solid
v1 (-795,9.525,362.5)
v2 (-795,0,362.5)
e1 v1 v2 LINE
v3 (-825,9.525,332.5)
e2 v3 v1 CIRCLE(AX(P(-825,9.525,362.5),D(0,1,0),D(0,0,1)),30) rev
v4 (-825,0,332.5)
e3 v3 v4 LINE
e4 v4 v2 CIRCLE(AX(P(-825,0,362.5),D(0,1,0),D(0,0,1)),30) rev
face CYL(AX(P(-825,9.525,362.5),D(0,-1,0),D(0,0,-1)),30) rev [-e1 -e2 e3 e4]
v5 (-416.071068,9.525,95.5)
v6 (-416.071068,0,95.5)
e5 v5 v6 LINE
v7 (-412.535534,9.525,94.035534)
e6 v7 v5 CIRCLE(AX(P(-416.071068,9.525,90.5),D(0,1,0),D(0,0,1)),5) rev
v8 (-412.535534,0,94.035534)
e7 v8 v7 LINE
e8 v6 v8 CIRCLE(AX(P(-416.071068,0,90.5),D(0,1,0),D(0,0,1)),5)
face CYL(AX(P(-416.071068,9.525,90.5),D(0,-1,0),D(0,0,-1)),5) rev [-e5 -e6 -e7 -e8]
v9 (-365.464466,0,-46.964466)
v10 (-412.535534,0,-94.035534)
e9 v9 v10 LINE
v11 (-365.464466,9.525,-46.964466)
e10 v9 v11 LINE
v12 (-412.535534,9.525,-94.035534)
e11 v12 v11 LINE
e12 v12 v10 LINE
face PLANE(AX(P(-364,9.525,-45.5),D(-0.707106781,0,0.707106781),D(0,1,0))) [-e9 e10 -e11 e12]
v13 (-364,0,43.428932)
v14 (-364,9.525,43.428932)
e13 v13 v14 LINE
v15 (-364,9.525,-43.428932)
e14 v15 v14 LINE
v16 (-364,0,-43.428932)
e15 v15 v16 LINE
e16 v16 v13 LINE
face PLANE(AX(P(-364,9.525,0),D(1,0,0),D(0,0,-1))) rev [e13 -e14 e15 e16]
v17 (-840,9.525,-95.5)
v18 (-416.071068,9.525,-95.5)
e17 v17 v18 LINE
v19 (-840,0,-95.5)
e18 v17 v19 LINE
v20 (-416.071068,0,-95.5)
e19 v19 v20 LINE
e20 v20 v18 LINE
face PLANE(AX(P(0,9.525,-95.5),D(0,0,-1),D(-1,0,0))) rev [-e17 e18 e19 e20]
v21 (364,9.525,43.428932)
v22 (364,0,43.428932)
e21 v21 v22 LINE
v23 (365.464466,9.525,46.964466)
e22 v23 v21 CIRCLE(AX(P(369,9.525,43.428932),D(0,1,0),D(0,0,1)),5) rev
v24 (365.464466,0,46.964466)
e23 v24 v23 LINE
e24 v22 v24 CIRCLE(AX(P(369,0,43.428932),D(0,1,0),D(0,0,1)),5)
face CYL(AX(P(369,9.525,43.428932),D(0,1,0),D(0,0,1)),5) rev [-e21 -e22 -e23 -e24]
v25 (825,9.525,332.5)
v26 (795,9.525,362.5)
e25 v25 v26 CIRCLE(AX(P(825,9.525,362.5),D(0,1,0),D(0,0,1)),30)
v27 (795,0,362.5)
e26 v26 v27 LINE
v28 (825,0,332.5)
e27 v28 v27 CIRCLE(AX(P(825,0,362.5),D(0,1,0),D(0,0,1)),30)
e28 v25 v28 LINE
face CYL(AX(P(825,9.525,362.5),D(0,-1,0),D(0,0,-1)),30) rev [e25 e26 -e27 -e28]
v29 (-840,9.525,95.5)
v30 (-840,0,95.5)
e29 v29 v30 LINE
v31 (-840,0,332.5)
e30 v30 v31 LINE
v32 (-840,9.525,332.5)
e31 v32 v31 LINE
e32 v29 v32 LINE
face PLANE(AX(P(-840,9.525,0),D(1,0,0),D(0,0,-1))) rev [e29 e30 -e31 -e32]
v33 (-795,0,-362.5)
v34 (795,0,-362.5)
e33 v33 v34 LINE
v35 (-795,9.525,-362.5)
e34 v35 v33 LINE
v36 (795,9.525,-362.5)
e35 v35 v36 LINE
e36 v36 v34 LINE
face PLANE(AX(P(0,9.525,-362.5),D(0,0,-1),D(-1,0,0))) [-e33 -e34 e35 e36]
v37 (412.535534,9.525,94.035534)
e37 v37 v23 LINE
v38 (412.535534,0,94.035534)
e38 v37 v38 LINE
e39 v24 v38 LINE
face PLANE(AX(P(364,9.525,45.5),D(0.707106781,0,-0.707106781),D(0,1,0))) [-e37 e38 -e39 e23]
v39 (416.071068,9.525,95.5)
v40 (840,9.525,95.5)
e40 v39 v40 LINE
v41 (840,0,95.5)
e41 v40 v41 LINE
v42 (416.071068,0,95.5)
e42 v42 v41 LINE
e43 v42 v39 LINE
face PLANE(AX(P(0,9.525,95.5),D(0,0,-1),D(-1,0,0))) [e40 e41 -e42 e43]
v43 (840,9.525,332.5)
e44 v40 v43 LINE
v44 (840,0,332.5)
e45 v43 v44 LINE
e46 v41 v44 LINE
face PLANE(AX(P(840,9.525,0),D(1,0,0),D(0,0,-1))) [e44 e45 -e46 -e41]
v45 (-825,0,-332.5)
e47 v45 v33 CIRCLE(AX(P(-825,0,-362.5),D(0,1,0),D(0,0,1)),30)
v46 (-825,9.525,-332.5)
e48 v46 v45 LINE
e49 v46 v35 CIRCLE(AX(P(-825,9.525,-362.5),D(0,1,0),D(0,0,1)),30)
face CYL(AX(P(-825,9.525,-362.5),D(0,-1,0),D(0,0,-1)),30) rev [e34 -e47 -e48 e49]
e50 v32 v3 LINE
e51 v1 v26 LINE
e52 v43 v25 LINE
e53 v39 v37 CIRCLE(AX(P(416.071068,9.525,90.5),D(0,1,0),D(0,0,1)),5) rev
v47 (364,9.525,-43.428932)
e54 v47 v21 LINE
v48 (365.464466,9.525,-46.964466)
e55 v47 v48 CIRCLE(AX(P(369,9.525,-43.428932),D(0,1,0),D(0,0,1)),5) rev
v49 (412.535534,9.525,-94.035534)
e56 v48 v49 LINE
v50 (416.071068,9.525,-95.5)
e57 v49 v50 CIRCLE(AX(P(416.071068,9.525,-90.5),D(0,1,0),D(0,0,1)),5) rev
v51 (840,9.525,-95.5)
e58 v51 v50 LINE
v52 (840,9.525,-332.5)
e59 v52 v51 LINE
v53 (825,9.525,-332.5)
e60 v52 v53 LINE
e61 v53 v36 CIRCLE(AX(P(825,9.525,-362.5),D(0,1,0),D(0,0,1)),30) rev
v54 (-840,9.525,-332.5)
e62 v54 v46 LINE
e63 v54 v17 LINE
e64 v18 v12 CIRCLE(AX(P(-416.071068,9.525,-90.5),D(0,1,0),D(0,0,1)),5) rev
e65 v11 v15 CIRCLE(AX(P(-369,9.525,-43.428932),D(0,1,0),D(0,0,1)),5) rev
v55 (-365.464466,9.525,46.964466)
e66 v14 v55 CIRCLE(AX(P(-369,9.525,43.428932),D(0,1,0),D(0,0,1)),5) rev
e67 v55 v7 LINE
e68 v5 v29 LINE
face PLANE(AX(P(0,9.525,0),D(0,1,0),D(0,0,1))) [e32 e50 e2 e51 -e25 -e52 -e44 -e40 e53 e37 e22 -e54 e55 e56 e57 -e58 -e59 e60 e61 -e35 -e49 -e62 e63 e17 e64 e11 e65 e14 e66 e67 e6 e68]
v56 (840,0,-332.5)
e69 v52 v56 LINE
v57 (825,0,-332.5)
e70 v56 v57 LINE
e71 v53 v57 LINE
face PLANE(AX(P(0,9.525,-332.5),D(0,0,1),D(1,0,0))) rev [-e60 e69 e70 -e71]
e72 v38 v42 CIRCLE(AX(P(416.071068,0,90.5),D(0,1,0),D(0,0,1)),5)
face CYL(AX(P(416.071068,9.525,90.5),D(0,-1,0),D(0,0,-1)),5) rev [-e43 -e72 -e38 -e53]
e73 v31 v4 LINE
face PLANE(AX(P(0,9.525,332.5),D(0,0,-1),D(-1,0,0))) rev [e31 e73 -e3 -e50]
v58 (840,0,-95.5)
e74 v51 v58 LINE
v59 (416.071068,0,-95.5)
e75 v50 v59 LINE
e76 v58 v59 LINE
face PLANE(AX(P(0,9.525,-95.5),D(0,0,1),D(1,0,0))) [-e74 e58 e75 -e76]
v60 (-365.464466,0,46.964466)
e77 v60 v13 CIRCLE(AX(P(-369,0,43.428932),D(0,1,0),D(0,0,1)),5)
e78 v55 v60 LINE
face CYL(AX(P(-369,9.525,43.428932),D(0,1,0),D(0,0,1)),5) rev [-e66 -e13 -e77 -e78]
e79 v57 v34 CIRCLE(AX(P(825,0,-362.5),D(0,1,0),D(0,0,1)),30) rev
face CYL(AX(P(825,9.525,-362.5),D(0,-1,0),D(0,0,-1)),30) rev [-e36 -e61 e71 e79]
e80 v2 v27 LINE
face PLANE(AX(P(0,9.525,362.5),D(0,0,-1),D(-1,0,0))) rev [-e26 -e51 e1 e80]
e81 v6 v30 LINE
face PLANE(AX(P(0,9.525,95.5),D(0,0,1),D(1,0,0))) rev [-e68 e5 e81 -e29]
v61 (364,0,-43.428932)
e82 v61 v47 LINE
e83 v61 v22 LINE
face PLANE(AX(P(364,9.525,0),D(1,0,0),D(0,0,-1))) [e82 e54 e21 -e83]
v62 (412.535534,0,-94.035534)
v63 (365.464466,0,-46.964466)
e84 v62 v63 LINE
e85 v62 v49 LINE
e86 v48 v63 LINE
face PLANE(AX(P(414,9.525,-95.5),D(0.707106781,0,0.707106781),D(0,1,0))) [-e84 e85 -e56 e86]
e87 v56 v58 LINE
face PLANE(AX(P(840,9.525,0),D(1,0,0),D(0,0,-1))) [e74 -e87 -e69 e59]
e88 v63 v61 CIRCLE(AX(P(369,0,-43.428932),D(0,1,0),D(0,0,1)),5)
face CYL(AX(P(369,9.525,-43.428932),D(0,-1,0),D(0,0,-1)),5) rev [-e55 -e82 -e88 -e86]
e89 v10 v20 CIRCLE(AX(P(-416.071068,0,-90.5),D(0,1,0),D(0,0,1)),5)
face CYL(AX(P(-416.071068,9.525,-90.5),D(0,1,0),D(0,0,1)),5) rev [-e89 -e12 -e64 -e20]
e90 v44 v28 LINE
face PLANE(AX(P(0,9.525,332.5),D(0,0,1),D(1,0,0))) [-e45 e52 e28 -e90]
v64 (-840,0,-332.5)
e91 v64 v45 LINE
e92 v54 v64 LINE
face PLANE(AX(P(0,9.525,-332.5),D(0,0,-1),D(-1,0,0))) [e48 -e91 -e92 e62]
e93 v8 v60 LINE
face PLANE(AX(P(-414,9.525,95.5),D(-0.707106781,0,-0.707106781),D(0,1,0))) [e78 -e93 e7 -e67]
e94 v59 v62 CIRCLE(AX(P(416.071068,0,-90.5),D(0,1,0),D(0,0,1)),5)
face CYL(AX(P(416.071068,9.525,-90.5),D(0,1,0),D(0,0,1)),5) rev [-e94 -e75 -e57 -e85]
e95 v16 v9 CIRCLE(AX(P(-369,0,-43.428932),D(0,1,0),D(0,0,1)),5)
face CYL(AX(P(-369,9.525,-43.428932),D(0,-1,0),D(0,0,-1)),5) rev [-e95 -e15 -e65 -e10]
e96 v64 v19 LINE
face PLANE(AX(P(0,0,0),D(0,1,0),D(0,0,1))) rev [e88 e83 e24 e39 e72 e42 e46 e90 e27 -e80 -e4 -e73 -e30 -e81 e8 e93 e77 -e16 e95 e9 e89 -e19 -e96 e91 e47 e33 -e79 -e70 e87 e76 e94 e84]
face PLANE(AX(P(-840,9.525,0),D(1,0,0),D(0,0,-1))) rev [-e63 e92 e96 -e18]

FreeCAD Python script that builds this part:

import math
import FreeCAD as App
import Part
import Sketcher
from FreeCAD import Vector


def edges_at(feature, points):
    """Names of the edges that pass closest to the given points."""
    edges = feature.Shape.Edges
    near = lambda p: min(range(len(edges)), key=lambda i: edges[i].distToShape(Part.Vertex(*p))[0])
    return sorted({f"Edge{near(p) + 1}" for p in points})

doc = App.newDocument("Part")
body = doc.addObject("PartDesign::Body", "Body")

# Sketch on XZ plane
sketch1 = body.newObject("Sketcher::SketchObject", "Sketch")
sketch1.AttachmentSupport = (doc.getObject("XZ_Plane"), [""])
sketch1.MapMode = "FlatFace"
sketch1.addGeometry([
    Part.LineSegment(Vector(-840, -332.5, 0), Vector(-840, -95.5, 0)),  # 0
    Part.LineSegment(Vector(-840, -95.5, 0), Vector(-364, -95.5, 0)),  # 1
    Part.LineSegment(Vector(-364, -95.5, 0), Vector(-364, 95.5, 0)),  # 2
    Part.LineSegment(Vector(-364, 95.5, 0), Vector(-840, 95.5, 0)),  # 3
    Part.LineSegment(Vector(-840, 95.5, 0), Vector(-840, 332.5, 0)),  # 4
    Part.LineSegment(Vector(-840, 332.5, 0), Vector(-825, 332.5, 0)),  # 5
    Part.ArcOfCircle(Part.Circle(Vector(-825, 362.5, 0), Vector(0, 0, 1), 30), math.radians(-90), math.radians(0)),  # 6
    Part.LineSegment(Vector(-795, 362.5, 0), Vector(795, 362.5, 0)),  # 7
    Part.ArcOfCircle(Part.Circle(Vector(825, 362.5, 0), Vector(0, 0, 1), 30), math.radians(180), math.radians(270)),  # 8
    Part.LineSegment(Vector(825, 332.5, 0), Vector(840, 332.5, 0)),  # 9
    Part.LineSegment(Vector(840, 332.5, 0), Vector(840, 95.5, 0)),  # 10
    Part.LineSegment(Vector(840, 95.5, 0), Vector(364, 95.5, 0)),  # 11
    Part.LineSegment(Vector(364, 95.5, 0), Vector(364, -95.5, 0)),  # 12
    Part.LineSegment(Vector(364, -95.5, 0), Vector(840, -95.5, 0)),  # 13
    Part.LineSegment(Vector(840, -95.5, 0), Vector(840, -332.5, 0)),  # 14
    Part.LineSegment(Vector(840, -332.5, 0), Vector(825, -332.5, 0)),  # 15
    Part.ArcOfCircle(Part.Circle(Vector(825, -362.5, 0), Vector(0, 0, 1), 30), math.radians(90), math.radians(180)),  # 16
    Part.LineSegment(Vector(795, -362.5, 0), Vector(-795, -362.5, 0)),  # 17
    Part.ArcOfCircle(Part.Circle(Vector(-825, -362.5, 0), Vector(0, 0, 1), 30), math.radians(0), math.radians(90)),  # 18
    Part.LineSegment(Vector(-825, -332.5, 0), Vector(-840, -332.5, 0)),  # 19
], False)
sketch1.addConstraint([
    Sketcher.Constraint("Coincident", 0, 2, 1, 1),
    Sketcher.Constraint("Coincident", 1, 2, 2, 1),
    Sketcher.Constraint("Coincident", 2, 2, 3, 1),
    Sketcher.Constraint("Coincident", 3, 2, 4, 1),
    Sketcher.Constraint("Coincident", 4, 2, 5, 1),
    Sketcher.Constraint("Tangent", 5, 2, 6, 1),
    Sketcher.Constraint("Coincident", 6, 2, 7, 1),
    Sketcher.Constraint("Coincident", 7, 2, 8, 1),
    Sketcher.Constraint("Tangent", 8, 2, 9, 1),
    Sketcher.Constraint("Coincident", 9, 2, 10, 1),
    Sketcher.Constraint("Coincident", 10, 2, 11, 1),
    Sketcher.Constraint("Coincident", 11, 2, 12, 1),
    Sketcher.Constraint("Coincident", 12, 2, 13, 1),
    Sketcher.Constraint("Coincident", 13, 2, 14, 1),
    Sketcher.Constraint("Coincident", 14, 2, 15, 1),
    Sketcher.Constraint("Tangent", 15, 2, 16, 1),
    Sketcher.Constraint("Coincident", 16, 2, 17, 1),
    Sketcher.Constraint("Coincident", 17, 2, 18, 1),
    Sketcher.Constraint("Tangent", 18, 2, 19, 1),
    Sketcher.Constraint("Coincident", 19, 2, 0, 1),
    Sketcher.Constraint("Vertical", 0),
    Sketcher.Constraint("Horizontal", 1),
    Sketcher.Constraint("Vertical", 2),
    Sketcher.Constraint("Horizontal", 3),
    Sketcher.Constraint("Vertical", 4),
    Sketcher.Constraint("Horizontal", 5),
    Sketcher.Constraint("Horizontal", 7),
    Sketcher.Constraint("Horizontal", 9),
    Sketcher.Constraint("Vertical", 10),
    Sketcher.Constraint("Horizontal", 11),
    Sketcher.Constraint("Vertical", 12),
    Sketcher.Constraint("Horizontal", 13),
    Sketcher.Constraint("Vertical", 14),
    Sketcher.Constraint("Horizontal", 15),
    Sketcher.Constraint("Horizontal", 17),
    Sketcher.Constraint("Horizontal", 19),
    Sketcher.Constraint("Equal", 6, 8),
    Sketcher.Constraint("Equal", 8, 16),
    Sketcher.Constraint("Equal", 16, 18),
    Sketcher.Constraint("Symmetric", 6, 3, 16, 3, -1, 1),
    Sketcher.Constraint("Symmetric", 8, 3, 18, 3, -1, 1),
    Sketcher.Constraint("Symmetric", 0, 2, 10, 2, -1, 1),
    Sketcher.Constraint("Symmetric", 2, 2, 12, 2, -1, 1),
    Sketcher.Constraint("Symmetric", 6, 3, 8, 3, -2),
    Sketcher.Constraint("Symmetric", 3, 2, 10, 2, -2),
    Sketcher.Constraint("Horizontal", 8, 3, 6, 2),
    Sketcher.Constraint("Horizontal", 18, 3, 16, 2),
    Sketcher.Constraint("Vertical", 10, 2, 13, 2),
    Sketcher.Constraint("Radius", 6, 30.0),
    Sketcher.Constraint("DistanceX", 1, 1, 1, 2, 476.0),
    Sketcher.Constraint("DistanceX", 5, 1, 5, 2, 15.0),
    Sketcher.Constraint("DistanceX", 7, 1, 7, 2, 1590.0),
    Sketcher.Constraint("DistanceY", 0, 1, 0, 2, 237.0),
    Sketcher.Constraint("DistanceY", 2, 1, 2, 2, 191.0),
])
pad1 = body.newObject("PartDesign::Pad", "Pad")
pad1.Profile = sketch1
pad1.Length = 9.525
pad1.Reversed = True
doc.recompute()

chamfer = body.newObject("PartDesign::Chamfer", "Chamfer")
chamfer.Base = (pad1, edges_at(pad1, [
    (-364, 4.763, 95.5),
    (-364, 4.763, -95.5),
    (364, 4.763, -95.5),
    (364, 4.763, 95.5),
]))
chamfer.Size = 50
doc.recompute()

fillet = body.newObject("PartDesign::Fillet", "Fillet")
fillet.Base = (chamfer, edges_at(chamfer, [
    (364, 4.763, -45.5),
    (364, 4.763, 45.5),
    (414, 4.763, 95.5),
    (414, 4.763, -95.5),
    (-414, 4.763, 95.5),
    (-364, 4.763, -45.5),
    (-364, 4.763, 45.5),
    (-414, 4.763, -95.5),
]))
fillet.Radius = 5

doc.recompute()
